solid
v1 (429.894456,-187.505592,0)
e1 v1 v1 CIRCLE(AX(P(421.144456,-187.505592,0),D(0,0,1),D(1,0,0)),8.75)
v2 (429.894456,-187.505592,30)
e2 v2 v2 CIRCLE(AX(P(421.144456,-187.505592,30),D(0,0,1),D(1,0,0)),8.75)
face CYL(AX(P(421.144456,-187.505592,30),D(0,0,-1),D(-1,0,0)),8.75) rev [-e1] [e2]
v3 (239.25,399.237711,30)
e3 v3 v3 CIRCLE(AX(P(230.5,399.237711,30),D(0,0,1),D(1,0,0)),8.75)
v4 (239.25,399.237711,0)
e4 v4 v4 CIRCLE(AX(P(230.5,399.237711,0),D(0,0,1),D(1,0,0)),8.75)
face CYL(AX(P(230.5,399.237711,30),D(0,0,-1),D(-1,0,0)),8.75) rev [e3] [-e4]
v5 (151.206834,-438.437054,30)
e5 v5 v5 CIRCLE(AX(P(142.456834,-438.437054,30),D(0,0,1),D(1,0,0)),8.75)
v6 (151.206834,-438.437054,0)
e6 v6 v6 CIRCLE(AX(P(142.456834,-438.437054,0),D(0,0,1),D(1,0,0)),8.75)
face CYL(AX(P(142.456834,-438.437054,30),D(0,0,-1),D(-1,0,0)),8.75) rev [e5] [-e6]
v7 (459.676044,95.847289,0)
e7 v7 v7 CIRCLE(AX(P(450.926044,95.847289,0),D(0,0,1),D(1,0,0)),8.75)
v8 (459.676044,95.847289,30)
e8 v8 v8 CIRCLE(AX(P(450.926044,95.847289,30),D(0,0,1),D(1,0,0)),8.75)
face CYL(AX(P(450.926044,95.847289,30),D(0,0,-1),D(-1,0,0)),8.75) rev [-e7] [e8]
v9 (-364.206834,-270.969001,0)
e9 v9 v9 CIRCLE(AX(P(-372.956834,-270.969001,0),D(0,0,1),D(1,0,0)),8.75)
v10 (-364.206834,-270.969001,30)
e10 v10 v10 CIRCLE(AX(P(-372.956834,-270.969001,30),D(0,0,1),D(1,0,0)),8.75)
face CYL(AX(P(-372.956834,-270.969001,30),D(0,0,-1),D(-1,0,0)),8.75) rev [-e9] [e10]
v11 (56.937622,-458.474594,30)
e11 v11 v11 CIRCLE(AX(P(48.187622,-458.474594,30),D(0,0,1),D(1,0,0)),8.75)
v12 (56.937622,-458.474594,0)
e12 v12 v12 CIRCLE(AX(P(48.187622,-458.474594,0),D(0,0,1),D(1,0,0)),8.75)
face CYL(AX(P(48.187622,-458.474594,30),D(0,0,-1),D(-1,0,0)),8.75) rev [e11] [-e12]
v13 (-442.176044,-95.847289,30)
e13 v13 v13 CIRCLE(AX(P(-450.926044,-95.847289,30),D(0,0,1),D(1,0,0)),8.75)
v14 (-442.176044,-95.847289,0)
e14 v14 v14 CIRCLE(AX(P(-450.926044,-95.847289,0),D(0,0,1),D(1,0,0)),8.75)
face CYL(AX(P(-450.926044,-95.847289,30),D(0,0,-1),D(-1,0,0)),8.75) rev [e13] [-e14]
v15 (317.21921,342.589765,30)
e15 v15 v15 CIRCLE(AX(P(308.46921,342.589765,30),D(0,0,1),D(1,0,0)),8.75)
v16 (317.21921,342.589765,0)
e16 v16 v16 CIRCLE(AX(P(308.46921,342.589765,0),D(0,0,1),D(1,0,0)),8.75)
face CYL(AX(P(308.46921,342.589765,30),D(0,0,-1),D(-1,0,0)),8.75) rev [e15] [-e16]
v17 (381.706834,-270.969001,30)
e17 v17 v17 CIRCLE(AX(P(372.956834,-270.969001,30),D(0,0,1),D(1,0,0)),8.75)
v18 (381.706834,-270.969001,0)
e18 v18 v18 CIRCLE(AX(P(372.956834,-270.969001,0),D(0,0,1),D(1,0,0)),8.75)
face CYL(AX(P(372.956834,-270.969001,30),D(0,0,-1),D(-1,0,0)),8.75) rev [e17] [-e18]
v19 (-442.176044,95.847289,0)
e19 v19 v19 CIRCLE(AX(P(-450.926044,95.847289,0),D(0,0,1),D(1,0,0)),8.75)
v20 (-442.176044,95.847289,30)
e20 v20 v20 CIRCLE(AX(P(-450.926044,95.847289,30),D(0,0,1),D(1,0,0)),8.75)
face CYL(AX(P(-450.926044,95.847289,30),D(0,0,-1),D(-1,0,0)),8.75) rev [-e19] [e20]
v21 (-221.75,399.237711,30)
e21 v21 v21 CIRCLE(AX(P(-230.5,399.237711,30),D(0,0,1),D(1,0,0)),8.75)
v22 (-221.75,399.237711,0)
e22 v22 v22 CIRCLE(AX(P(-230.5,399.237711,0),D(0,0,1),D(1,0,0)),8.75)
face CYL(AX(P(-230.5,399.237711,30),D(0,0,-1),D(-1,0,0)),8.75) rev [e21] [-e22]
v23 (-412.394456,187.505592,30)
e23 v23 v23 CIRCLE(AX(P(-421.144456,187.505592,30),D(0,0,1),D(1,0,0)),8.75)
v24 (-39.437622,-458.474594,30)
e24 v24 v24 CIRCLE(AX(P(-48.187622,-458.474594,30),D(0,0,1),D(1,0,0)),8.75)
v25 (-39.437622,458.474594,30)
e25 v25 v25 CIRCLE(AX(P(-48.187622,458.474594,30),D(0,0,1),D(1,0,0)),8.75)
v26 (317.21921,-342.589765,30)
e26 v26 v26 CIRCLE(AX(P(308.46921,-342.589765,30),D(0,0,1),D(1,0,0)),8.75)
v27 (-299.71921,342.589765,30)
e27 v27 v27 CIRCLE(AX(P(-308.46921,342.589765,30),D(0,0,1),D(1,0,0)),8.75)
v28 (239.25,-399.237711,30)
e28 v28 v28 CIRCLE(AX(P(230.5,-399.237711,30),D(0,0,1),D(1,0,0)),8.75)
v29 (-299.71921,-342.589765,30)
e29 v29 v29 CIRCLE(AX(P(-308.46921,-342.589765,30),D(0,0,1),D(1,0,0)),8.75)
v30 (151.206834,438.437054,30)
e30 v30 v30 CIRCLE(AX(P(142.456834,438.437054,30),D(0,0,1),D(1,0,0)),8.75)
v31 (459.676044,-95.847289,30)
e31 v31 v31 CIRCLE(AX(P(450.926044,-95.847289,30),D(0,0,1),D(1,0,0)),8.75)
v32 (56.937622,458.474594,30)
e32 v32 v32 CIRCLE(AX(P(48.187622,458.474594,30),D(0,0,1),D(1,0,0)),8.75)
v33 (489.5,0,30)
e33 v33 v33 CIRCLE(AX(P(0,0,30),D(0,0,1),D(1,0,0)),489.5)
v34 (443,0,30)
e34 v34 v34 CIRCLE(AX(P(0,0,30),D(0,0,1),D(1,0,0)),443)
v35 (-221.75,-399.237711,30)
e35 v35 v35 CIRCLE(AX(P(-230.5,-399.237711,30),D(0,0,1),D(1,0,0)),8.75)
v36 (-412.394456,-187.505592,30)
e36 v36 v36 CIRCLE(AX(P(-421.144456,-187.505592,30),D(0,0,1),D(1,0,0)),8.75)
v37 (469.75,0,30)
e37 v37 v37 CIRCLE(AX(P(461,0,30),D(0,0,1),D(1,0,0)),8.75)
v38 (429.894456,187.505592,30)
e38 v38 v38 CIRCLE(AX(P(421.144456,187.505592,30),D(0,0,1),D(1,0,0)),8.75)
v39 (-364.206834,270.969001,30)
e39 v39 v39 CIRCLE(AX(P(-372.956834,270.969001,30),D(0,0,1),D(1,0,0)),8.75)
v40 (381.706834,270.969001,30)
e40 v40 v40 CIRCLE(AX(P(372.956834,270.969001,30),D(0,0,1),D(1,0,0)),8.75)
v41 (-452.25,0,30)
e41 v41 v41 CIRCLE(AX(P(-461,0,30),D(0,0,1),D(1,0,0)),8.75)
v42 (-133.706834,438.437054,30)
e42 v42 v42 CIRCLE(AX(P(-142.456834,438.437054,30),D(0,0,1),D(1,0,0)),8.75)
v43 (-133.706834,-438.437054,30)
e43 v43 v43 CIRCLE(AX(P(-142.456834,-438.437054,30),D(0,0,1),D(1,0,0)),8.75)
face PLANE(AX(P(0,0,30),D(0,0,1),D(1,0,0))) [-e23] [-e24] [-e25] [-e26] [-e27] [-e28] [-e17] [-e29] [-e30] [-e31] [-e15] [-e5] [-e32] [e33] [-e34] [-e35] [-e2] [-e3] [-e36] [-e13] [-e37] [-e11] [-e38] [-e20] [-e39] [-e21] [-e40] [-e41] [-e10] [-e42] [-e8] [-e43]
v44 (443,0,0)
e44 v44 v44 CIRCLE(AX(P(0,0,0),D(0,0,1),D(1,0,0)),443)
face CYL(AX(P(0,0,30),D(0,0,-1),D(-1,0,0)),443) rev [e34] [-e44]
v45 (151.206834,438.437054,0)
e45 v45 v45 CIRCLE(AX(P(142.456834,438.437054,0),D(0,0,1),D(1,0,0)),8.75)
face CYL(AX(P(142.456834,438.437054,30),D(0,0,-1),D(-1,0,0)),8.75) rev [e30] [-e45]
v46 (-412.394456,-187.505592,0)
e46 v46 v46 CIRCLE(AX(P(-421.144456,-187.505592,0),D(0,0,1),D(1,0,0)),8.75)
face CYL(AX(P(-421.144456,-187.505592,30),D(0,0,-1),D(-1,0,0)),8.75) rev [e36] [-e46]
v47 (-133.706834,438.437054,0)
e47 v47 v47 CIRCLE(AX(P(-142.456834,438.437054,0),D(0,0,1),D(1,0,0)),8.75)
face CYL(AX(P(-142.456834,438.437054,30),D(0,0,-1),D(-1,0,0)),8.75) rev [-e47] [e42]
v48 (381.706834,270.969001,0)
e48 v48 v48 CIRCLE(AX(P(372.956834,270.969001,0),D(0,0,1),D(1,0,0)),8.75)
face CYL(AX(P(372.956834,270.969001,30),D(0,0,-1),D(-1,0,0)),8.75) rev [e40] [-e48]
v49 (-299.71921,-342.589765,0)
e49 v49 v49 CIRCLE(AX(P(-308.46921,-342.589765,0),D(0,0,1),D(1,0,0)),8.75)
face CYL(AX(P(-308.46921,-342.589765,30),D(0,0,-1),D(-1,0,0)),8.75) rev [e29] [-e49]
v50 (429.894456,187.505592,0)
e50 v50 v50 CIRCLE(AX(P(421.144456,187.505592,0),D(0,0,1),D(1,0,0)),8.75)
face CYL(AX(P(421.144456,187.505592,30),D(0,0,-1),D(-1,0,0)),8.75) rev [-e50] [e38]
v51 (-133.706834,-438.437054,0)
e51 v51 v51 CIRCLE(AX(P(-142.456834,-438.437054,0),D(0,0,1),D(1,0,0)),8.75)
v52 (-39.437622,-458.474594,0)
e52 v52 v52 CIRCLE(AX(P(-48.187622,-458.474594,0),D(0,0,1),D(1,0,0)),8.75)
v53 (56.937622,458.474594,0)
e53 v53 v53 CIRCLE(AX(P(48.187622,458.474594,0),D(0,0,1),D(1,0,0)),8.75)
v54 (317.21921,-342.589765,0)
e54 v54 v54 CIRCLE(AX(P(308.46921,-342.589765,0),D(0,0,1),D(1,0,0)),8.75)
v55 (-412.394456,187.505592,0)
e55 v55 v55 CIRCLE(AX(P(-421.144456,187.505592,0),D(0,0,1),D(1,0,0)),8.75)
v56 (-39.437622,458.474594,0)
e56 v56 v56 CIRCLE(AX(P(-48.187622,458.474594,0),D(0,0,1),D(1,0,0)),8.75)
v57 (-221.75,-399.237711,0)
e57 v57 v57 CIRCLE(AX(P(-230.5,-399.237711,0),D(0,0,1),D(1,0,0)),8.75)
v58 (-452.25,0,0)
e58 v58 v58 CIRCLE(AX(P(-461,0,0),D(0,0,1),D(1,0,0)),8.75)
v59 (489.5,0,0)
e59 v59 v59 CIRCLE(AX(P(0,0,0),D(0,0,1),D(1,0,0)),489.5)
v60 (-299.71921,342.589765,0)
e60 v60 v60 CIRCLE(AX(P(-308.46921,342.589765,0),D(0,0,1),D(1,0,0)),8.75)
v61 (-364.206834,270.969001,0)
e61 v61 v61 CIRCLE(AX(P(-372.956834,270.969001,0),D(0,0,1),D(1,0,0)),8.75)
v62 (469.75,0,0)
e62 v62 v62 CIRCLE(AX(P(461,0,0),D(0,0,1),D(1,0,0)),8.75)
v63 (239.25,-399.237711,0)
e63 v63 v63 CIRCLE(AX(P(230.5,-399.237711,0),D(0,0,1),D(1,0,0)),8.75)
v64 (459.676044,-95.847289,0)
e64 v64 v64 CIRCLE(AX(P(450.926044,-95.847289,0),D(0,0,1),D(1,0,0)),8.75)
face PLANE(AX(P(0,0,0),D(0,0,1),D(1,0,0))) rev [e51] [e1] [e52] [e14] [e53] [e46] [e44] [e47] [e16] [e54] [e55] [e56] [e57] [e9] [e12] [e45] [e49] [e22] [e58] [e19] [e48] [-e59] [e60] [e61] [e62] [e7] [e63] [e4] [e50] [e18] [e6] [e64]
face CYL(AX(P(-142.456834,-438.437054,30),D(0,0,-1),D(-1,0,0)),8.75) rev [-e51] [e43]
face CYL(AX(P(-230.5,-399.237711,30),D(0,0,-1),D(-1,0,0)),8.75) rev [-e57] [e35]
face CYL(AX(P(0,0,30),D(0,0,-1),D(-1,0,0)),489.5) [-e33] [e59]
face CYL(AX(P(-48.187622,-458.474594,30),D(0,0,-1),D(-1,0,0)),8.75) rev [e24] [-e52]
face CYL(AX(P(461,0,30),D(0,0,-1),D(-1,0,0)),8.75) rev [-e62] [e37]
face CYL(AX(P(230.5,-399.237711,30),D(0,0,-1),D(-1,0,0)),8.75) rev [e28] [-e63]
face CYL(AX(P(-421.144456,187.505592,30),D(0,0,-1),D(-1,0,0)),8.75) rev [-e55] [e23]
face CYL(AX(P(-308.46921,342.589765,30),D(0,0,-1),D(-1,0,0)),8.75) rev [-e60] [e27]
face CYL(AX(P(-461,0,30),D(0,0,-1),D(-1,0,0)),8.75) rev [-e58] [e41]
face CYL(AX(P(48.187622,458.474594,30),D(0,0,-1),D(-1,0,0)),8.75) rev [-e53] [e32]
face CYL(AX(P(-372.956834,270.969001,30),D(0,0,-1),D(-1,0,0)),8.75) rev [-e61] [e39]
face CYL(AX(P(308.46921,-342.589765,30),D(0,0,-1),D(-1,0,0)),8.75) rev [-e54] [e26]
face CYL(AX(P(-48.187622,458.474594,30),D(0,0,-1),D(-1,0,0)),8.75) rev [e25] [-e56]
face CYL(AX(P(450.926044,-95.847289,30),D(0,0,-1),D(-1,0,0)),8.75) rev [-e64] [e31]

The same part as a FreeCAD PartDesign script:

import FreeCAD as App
import Part
import Sketcher
from FreeCAD import Vector
Q = App.Units.Quantity

doc = App.newDocument("Part")
body = doc.addObject("PartDesign::Body", "Body")

# Sketch on XY plane
sketch1 = body.newObject("Sketcher::SketchObject", "Sketch")
sketch1.AttachmentSupport = (doc.getObject("XY_Plane"), [""])
sketch1.MapMode = "FlatFace"
sketch1.addGeometry([
    Part.Circle(Vector(0, 0, 0), Vector(0, 0, 1), 490),  # 0
    Part.Circle(Vector(-373, -271, 0), Vector(0, 0, 1), 9),  # 1
    Part.Circle(Vector(-308, -343, 0), Vector(0, 0, 1), 9),  # 2
    Part.Circle(Vector(-142, -438, 0), Vector(0, 0, 1), 9),  # 3
    Part.Circle(Vector(-230, -399, 0), Vector(0, 0, 1), 9),  # 4
    Part.Circle(Vector(-48, -458, 0), Vector(0, 0, 1), 9),  # 5
    Part.Circle(Vector(-421, -188, 0), Vector(0, 0, 1), 9),  # 6
    Part.Circle(Vector(-451, -96, 0), Vector(0, 0, 1), 9),  # 7
    Part.Circle(Vector(48, -458, 0), Vector(0, 0, 1), 9),  # 8
    Part.Circle(Vector(142, -438, 0), Vector(0, 0, 1), 9),  # 9
    Part.Circle(Vector(230, -399, 0), Vector(0, 0, 1), 9),  # 10
    Part.Circle(Vector(308, -343, 0), Vector(0, 0, 1), 9),  # 11
    Part.Circle(Vector(373, -271, 0), Vector(0, 0, 1), 9),  # 12
    Part.Circle(Vector(421, -188, 0), Vector(0, 0, 1), 9),  # 13
    Part.Circle(Vector(451, -96, 0), Vector(0, 0, 1), 9),  # 14
    Part.Circle(Vector(-461, 0, 0), Vector(0, 0, 1), 9),  # 15
    Part.Circle(Vector(-451, 96, 0), Vector(0, 0, 1), 9),  # 16
    Part.Circle(Vector(-421, 188, 0), Vector(0, 0, 1), 9),  # 17
    Part.Circle(Vector(0, 0, 0), Vector(0, 0, 1), 443),  # 18
    Part.Circle(Vector(-373, 271, 0), Vector(0, 0, 1), 9),  # 19
    Part.Circle(Vector(-308, 343, 0), Vector(0, 0, 1), 9),  # 20
    Part.Circle(Vector(-230, 399, 0), Vector(0, 0, 1), 9),  # 21
    Part.Circle(Vector(-142, 438, 0), Vector(0, 0, 1), 9),  # 22
    Part.Circle(Vector(-48, 458, 0), Vector(0, 0, 1), 9),  # 23
    Part.Circle(Vector(461, 0, 0), Vector(0, 0, 1), 9),  # 24
    Part.Circle(Vector(451, 96, 0), Vector(0, 0, 1), 9),  # 25
    Part.Circle(Vector(421, 188, 0), Vector(0, 0, 1), 9),  # 26
    Part.Circle(Vector(48, 458, 0), Vector(0, 0, 1), 9),  # 27
    Part.Circle(Vector(230, 399, 0), Vector(0, 0, 1), 9),  # 28
    Part.Circle(Vector(142, 438, 0), Vector(0, 0, 1), 9),  # 29
    Part.Circle(Vector(308, 343, 0), Vector(0, 0, 1), 9),  # 30
    Part.Circle(Vector(373, 271, 0), Vector(0, 0, 1), 9),  # 31
], False)
sketch1.addConstraint([
    Sketcher.Constraint("Coincident", 0, 3, -1, 1),
    Sketcher.Constraint("Coincident", 18, 3, -1, 1),
    Sketcher.Constraint("Equal", 1, 2),
    Sketcher.Constraint("Equal", 2, 3),
    Sketcher.Constraint("Equal", 3, 4),
    Sketcher.Constraint("Equal", 4, 5),
    Sketcher.Constraint("Equal", 5, 6),
    Sketcher.Constraint("Equal", 6, 7),
    Sketcher.Constraint("Equal", 7, 8),
    Sketcher.Constraint("Equal", 8, 9),
    Sketcher.Constraint("Equal", 9, 10),
    Sketcher.Constraint("Equal", 10, 11),
    Sketcher.Constraint("Equal", 11, 12),
    Sketcher.Constraint("Equal", 12, 13),
    Sketcher.Constraint("Equal", 13, 14),
    Sketcher.Constraint("Equal", 14, 15),
    Sketcher.Constraint("Equal", 15, 16),
    Sketcher.Constraint("Equal", 16, 17),
    Sketcher.Constraint("Equal", 17, 19),
    Sketcher.Constraint("Equal", 19, 20),
    Sketcher.Constraint("Equal", 20, 21),
    Sketcher.Constraint("Equal", 21, 22),
    Sketcher.Constraint("Equal", 22, 23),
    Sketcher.Constraint("Equal", 23, 24),
    Sketcher.Constraint("Equal", 24, 25),
    Sketcher.Constraint("Equal", 25, 26),
    Sketcher.Constraint("Equal", 26, 27),
    Sketcher.Constraint("Equal", 27, 28),
    Sketcher.Constraint("Equal", 28, 29),
    Sketcher.Constraint("Equal", 29, 30),
    Sketcher.Constraint("Equal", 30, 31),
    Sketcher.Constraint("Symmetric", 14, 3, 16, 3, -1, 1),
    Sketcher.Constraint("Symmetric", 13, 3, 17, 3, -1, 1),
    Sketcher.Constraint("Symmetric", 12, 3, 19, 3, -1, 1),
    Sketcher.Constraint("Symmetric", 11, 3, 20, 3, -1, 1),
    Sketcher.Constraint("Symmetric", 10, 3, 21, 3, -1, 1),
    Sketcher.Constraint("Symmetric", 9, 3, 22, 3, -1, 1),
    Sketcher.Constraint("Symmetric", 8, 3, 23, 3, -1, 1),
    Sketcher.Constraint("Symmetric", 15, 3, 24, 3, -1, 1),
    Sketcher.Constraint("Symmetric", 7, 3, 25, 3, -1, 1),
    Sketcher.Constraint("Symmetric", 6, 3, 26, 3, -1, 1),
    Sketcher.Constraint("Symmetric", 5, 3, 27, 3, -1, 1),
    Sketcher.Constraint("Symmetric", 4, 3, 28, 3, -1, 1),
    Sketcher.Constraint("Symmetric", 3, 3, 29, 3, -1, 1),
    Sketcher.Constraint("Symmetric", 2, 3, 30, 3, -1, 1),
    Sketcher.Constraint("Symmetric", 1, 3, 31, 3, -1, 1),
    Sketcher.Constraint("Symmetric", 5, 3, 8, 3, -2),
    Sketcher.Constraint("Symmetric", 3, 3, 9, 3, -2),
    Sketcher.Constraint("Symmetric", 4, 3, 10, 3, -2),
    Sketcher.Constraint("Symmetric", 2, 3, 11, 3, -2),
    Sketcher.Constraint("Symmetric", 1, 3, 12, 3, -2),
    Sketcher.Constraint("Symmetric", 6, 3, 13, 3, -2),
    Sketcher.Constraint("Symmetric", 7, 3, 14, 3, -2),
    Sketcher.Constraint("PointOnObject", 15, 3, -1),
    Sketcher.Constraint("Diameter", 0, Q("979 mm")),
    Sketcher.Constraint("Diameter", 18, Q("886 mm")),
    Sketcher.Constraint("Diameter", 1, Q("17.5 mm")),
    Sketcher.Constraint("DistanceX", 15, 3, -1, 1, Q("461 mm")),
    Sketcher.Constraint("DistanceX", 4, 3, 10, 3, Q("461 mm")),
    Sketcher.Constraint("DistanceX", 1, 3, 3, 3, Q("230.5 mm")),
    Sketcher.Constraint("DistanceY", 1, 3, -1, 1, Q("270.969001 mm")),
    Sketcher.Constraint("DistanceX", 2, 3, -1, 1, Q("308.46921 mm")),
    Sketcher.Constraint("DistanceY", 4, 3, -1, 1, Q("399.237711 mm")),
    Sketcher.Constraint("DistanceX", 5, 3, -1, 1, Q("48.187622 mm")),
    Sketcher.Constraint("DistanceY", 7, 3, -1, 1, Q("95.847289 mm")),
    Sketcher.Constraint("DistanceY", 3, 3, 2, 3, Q("95.847289 mm")),
    Sketcher.Constraint("DistanceY", 5, 3, 3, 3, Q("20.03754 mm")),
    Sketcher.Constraint("DistanceX", 6, 3, 1, 3, Q("48.187622 mm")),
    Sketcher.Constraint("DistanceY", 1, 3, 6, 3, Q("83.463409 mm")),
    Sketcher.Constraint("DistanceY", 3, 3, 6, 3, Q("250.931462 mm")),
    Sketcher.Constraint("DistanceX", 7, 3, 1, 3, Q("77.96921 mm")),
    Sketcher.Constraint("DistanceX", 3, 3, 9, 3, Q("284.913669 mm")),
])
pad1 = body.newObject("PartDesign::Pad", "Pad")
pad1.Profile = sketch1
pad1.Length = 30

doc.recompute()
